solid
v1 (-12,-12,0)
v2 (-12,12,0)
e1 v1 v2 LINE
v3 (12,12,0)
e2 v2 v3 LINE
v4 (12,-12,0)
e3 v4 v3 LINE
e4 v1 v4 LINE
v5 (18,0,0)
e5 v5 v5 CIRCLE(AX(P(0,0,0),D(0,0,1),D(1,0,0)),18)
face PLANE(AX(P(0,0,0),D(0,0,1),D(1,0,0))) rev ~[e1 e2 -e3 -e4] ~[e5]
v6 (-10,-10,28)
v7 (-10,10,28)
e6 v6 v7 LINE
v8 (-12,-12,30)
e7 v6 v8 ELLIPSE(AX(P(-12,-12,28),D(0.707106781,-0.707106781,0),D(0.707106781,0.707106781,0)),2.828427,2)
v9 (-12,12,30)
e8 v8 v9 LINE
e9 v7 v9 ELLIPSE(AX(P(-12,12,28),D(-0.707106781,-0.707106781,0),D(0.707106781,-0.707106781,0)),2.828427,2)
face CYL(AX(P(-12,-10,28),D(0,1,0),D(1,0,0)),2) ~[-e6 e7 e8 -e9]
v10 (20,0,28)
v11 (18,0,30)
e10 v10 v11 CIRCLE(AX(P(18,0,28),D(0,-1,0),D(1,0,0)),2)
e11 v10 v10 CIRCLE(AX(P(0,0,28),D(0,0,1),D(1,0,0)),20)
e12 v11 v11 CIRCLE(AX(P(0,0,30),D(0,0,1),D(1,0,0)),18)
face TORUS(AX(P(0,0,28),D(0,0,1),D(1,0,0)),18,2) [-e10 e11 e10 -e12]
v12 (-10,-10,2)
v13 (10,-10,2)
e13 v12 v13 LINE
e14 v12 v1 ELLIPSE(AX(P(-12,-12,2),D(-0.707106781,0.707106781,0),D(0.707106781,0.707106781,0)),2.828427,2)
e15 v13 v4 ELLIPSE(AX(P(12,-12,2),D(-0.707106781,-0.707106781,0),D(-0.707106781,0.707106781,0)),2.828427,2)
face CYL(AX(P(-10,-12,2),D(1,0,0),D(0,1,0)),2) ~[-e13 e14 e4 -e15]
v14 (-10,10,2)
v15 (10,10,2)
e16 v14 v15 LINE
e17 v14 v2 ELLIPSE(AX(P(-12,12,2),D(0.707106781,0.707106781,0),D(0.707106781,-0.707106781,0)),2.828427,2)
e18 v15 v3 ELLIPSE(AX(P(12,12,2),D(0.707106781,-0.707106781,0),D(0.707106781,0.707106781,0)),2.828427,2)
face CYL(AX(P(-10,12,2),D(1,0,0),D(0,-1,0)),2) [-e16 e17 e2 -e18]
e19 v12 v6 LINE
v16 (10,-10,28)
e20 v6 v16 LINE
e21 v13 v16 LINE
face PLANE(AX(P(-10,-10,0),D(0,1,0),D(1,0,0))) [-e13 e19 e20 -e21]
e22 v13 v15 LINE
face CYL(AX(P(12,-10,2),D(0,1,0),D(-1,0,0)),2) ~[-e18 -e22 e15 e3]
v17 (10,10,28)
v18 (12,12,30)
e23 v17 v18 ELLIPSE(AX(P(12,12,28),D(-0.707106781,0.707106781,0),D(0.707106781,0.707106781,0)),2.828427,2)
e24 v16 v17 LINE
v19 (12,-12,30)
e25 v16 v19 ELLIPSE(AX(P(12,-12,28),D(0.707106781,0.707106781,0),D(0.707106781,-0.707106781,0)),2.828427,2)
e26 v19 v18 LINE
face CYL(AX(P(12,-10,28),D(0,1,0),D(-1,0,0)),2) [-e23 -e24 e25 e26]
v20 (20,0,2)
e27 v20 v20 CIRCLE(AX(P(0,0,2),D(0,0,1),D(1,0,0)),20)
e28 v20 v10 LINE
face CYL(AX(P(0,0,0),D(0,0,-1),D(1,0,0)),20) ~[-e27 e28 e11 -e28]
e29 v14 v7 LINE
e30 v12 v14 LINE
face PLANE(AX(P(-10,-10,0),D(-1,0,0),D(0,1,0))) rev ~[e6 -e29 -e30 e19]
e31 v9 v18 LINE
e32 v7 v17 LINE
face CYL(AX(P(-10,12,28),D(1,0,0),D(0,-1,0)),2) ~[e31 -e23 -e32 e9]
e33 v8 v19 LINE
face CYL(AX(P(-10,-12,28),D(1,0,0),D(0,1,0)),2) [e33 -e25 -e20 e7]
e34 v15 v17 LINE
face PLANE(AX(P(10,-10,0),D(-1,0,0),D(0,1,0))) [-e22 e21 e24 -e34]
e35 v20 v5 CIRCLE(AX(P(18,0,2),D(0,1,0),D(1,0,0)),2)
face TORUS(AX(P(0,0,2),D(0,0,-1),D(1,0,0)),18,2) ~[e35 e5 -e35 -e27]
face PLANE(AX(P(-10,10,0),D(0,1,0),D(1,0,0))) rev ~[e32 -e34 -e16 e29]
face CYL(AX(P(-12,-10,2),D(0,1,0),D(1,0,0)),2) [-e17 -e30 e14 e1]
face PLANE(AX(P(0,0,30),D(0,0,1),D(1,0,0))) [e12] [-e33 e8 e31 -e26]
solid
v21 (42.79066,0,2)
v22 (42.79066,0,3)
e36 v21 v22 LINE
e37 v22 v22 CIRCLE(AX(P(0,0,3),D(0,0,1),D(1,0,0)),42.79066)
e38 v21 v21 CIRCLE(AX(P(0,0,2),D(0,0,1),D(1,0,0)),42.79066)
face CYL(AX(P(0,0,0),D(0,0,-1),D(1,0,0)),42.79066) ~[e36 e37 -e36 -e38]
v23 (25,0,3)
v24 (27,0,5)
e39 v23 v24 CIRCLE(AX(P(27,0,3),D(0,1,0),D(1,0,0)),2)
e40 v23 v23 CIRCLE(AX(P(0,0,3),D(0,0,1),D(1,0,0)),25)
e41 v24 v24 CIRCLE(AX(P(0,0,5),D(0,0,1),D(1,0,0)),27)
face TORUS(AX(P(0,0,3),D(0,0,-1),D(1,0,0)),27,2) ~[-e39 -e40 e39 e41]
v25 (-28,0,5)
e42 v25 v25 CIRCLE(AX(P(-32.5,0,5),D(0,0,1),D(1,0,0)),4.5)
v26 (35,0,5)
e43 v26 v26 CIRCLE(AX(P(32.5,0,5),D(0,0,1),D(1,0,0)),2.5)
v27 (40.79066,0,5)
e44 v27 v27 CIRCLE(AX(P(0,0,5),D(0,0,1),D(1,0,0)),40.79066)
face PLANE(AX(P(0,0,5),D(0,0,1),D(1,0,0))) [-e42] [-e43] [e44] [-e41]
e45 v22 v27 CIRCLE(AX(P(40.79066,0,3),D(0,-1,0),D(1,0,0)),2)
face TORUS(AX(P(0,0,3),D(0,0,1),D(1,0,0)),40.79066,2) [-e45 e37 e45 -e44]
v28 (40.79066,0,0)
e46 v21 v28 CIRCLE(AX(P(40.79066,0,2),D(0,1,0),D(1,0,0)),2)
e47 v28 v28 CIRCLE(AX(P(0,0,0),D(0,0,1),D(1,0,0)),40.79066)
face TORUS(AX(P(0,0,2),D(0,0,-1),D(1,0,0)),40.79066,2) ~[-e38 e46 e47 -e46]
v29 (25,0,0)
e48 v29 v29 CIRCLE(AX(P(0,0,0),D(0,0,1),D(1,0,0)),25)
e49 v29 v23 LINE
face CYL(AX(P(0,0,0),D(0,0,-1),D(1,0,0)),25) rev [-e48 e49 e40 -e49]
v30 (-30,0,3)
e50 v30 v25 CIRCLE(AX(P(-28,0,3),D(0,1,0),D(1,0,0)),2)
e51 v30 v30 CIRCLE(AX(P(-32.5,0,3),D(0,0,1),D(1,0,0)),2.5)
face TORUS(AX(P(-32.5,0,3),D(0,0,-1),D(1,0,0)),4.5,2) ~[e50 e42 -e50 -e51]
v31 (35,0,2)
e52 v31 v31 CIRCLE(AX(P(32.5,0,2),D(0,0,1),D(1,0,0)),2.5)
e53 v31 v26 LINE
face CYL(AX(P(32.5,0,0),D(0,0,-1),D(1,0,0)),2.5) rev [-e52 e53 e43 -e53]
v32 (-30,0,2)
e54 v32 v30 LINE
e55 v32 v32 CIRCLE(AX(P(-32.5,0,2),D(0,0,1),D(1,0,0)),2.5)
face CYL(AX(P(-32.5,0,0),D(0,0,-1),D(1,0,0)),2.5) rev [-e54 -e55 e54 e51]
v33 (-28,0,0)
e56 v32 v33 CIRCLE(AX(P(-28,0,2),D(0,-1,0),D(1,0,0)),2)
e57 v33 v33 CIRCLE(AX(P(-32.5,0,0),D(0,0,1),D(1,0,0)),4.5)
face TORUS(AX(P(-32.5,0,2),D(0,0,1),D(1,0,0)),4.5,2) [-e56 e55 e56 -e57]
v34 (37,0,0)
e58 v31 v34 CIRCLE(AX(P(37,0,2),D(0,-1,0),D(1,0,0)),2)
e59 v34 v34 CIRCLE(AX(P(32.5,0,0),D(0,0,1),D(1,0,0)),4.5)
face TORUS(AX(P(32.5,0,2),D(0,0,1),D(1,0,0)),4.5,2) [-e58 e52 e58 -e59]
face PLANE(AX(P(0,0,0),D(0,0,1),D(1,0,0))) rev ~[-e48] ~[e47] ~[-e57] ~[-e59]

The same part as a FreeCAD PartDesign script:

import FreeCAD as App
import Part
import Sketcher
from FreeCAD import Vector


def edges_at(feature, points):
    """Names of the edges that pass closest to the given points."""
    edges = feature.Shape.Edges
    near = lambda p: min(range(len(edges)), key=lambda i: edges[i].distToShape(Part.Vertex(*p))[0])
    return sorted({f"Edge{near(p) + 1}" for p in points})


def add_polygon(sketch, points):
    """Adds a closed chain of lines whose ends are joined by coincident constraints."""
    first, n = sketch.GeometryCount, len(points)
    for a, b in zip(points, points[1:] + points[:1]):
        sketch.addGeometry(Part.LineSegment(App.Vector(*a, 0), App.Vector(*b, 0)), False)
    for i in range(n):
        sketch.addConstraint(Sketcher.Constraint("Coincident", first + i, 2, first + (i + 1) % n, 1))

doc = App.newDocument("Part")
body = doc.addObject("PartDesign::Body", "Body")

sketch1 = body.newObject("Sketcher::SketchObject", "Sketch")
sketch1.AttachmentSupport = (doc.getObject("XY_Plane"), [""])
sketch1.MapMode = "FlatFace"
sketch1.addGeometry(Part.Circle(Vector(0, 0, 0), Vector(0, 0, 1), 42.8), False)
sketch1.addGeometry(Part.Circle(Vector(-32.5, 0, 0), Vector(0, 0, 1), 2.5), False)
sketch1.addGeometry(Part.Circle(Vector(0, 0, 0), Vector(0, 0, 1), 25), False)
sketch1.addGeometry(Part.Circle(Vector(32.5, 0, 0), Vector(0, 0, 1), 2.5), False)
sketch1.addConstraint(Sketcher.Constraint("Coincident", 0, 3, -1, 1))
sketch1.addConstraint(Sketcher.Constraint("Coincident", 2, 3, -1, 1))
sketch1.addConstraint(Sketcher.Constraint("Equal", 1, 3))
sketch1.addConstraint(Sketcher.Constraint("Symmetric", 1, 3, 3, 3, -1, 1))
sketch1.addConstraint(Sketcher.Constraint("PointOnObject", 1, 3, -1))
sketch1.addConstraint(Sketcher.Constraint("Diameter", 1, 5.0))
sketch1.addConstraint(Sketcher.Constraint("Diameter", 2, 50.0))
sketch1.addConstraint(Sketcher.Constraint("DistanceX", 1, 3, 3, 3, 65.0))
sketch1.addConstraint(Sketcher.Constraint("Diameter", 0, 85.58132))
pad1 = body.newObject("PartDesign::Pad", "Pad")
pad1.Profile = sketch1
pad1.Length = 5
doc.recompute()

fillet = body.newObject("PartDesign::Fillet", "Fillet")
fillet.Base = (pad1, edges_at(pad1, [
    (-42.791, 0, 0),
    (-42.791, 0, 5),
    (-25, 0, 5),
    (-35, 0, 5),
    (-35, 0, 0),
    (30, 0, 0),
]))
fillet.Radius = 2
body2 = doc.addObject("PartDesign::Body", "Body001")

sketch2 = body2.newObject("Sketcher::SketchObject", "Sketch001")
sketch2.AttachmentSupport = (doc.getObject("XY_Plane001"), [""])
sketch2.MapMode = "FlatFace"
sketch2.addGeometry(Part.Circle(Vector(0, 0, 0), Vector(0, 0, 1), 20), False)
add_polygon(sketch2, [(10, -10), (-10, -10), (-10, 10), (10, 10)])
sketch2.addConstraint(Sketcher.Constraint("Horizontal", 1))
sketch2.addConstraint(Sketcher.Constraint("Vertical", 2))
sketch2.addConstraint(Sketcher.Constraint("Horizontal", 3))
sketch2.addConstraint(Sketcher.Constraint("Vertical", 4))
sketch2.addConstraint(Sketcher.Constraint("Coincident", 0, 3, -1, 1))
sketch2.addConstraint(Sketcher.Constraint("Symmetric", 1, 2, 3, 2, -1, 1))
sketch2.addConstraint(Sketcher.Constraint("Equal", 3, 2))
sketch2.addConstraint(Sketcher.Constraint("Diameter", 0, 40.0))
sketch2.addConstraint(Sketcher.Constraint("DistanceX", 1, 2, 1, 1, 20.0))
pad2 = body2.newObject("PartDesign::Pad", "Pad001")
pad2.Profile = sketch2
pad2.Length = 30
doc.recompute()

fillet2 = body2.newObject("PartDesign::Fillet", "Fillet001")
fillet2.Base = (pad2, edges_at(pad2, [
    (-20, 0, 30),
    (-20, 0, 0),
    (0, 10, 30),
    (-10, 0, 30),
    (0, -10, 30),
    (10, 0, 30),
    (0, 10, 0),
    (10, 0, 0),
    (-10, 0, 0),
    (0, -10, 0),
]))
fillet2.Radius = 2

doc.recompute()
